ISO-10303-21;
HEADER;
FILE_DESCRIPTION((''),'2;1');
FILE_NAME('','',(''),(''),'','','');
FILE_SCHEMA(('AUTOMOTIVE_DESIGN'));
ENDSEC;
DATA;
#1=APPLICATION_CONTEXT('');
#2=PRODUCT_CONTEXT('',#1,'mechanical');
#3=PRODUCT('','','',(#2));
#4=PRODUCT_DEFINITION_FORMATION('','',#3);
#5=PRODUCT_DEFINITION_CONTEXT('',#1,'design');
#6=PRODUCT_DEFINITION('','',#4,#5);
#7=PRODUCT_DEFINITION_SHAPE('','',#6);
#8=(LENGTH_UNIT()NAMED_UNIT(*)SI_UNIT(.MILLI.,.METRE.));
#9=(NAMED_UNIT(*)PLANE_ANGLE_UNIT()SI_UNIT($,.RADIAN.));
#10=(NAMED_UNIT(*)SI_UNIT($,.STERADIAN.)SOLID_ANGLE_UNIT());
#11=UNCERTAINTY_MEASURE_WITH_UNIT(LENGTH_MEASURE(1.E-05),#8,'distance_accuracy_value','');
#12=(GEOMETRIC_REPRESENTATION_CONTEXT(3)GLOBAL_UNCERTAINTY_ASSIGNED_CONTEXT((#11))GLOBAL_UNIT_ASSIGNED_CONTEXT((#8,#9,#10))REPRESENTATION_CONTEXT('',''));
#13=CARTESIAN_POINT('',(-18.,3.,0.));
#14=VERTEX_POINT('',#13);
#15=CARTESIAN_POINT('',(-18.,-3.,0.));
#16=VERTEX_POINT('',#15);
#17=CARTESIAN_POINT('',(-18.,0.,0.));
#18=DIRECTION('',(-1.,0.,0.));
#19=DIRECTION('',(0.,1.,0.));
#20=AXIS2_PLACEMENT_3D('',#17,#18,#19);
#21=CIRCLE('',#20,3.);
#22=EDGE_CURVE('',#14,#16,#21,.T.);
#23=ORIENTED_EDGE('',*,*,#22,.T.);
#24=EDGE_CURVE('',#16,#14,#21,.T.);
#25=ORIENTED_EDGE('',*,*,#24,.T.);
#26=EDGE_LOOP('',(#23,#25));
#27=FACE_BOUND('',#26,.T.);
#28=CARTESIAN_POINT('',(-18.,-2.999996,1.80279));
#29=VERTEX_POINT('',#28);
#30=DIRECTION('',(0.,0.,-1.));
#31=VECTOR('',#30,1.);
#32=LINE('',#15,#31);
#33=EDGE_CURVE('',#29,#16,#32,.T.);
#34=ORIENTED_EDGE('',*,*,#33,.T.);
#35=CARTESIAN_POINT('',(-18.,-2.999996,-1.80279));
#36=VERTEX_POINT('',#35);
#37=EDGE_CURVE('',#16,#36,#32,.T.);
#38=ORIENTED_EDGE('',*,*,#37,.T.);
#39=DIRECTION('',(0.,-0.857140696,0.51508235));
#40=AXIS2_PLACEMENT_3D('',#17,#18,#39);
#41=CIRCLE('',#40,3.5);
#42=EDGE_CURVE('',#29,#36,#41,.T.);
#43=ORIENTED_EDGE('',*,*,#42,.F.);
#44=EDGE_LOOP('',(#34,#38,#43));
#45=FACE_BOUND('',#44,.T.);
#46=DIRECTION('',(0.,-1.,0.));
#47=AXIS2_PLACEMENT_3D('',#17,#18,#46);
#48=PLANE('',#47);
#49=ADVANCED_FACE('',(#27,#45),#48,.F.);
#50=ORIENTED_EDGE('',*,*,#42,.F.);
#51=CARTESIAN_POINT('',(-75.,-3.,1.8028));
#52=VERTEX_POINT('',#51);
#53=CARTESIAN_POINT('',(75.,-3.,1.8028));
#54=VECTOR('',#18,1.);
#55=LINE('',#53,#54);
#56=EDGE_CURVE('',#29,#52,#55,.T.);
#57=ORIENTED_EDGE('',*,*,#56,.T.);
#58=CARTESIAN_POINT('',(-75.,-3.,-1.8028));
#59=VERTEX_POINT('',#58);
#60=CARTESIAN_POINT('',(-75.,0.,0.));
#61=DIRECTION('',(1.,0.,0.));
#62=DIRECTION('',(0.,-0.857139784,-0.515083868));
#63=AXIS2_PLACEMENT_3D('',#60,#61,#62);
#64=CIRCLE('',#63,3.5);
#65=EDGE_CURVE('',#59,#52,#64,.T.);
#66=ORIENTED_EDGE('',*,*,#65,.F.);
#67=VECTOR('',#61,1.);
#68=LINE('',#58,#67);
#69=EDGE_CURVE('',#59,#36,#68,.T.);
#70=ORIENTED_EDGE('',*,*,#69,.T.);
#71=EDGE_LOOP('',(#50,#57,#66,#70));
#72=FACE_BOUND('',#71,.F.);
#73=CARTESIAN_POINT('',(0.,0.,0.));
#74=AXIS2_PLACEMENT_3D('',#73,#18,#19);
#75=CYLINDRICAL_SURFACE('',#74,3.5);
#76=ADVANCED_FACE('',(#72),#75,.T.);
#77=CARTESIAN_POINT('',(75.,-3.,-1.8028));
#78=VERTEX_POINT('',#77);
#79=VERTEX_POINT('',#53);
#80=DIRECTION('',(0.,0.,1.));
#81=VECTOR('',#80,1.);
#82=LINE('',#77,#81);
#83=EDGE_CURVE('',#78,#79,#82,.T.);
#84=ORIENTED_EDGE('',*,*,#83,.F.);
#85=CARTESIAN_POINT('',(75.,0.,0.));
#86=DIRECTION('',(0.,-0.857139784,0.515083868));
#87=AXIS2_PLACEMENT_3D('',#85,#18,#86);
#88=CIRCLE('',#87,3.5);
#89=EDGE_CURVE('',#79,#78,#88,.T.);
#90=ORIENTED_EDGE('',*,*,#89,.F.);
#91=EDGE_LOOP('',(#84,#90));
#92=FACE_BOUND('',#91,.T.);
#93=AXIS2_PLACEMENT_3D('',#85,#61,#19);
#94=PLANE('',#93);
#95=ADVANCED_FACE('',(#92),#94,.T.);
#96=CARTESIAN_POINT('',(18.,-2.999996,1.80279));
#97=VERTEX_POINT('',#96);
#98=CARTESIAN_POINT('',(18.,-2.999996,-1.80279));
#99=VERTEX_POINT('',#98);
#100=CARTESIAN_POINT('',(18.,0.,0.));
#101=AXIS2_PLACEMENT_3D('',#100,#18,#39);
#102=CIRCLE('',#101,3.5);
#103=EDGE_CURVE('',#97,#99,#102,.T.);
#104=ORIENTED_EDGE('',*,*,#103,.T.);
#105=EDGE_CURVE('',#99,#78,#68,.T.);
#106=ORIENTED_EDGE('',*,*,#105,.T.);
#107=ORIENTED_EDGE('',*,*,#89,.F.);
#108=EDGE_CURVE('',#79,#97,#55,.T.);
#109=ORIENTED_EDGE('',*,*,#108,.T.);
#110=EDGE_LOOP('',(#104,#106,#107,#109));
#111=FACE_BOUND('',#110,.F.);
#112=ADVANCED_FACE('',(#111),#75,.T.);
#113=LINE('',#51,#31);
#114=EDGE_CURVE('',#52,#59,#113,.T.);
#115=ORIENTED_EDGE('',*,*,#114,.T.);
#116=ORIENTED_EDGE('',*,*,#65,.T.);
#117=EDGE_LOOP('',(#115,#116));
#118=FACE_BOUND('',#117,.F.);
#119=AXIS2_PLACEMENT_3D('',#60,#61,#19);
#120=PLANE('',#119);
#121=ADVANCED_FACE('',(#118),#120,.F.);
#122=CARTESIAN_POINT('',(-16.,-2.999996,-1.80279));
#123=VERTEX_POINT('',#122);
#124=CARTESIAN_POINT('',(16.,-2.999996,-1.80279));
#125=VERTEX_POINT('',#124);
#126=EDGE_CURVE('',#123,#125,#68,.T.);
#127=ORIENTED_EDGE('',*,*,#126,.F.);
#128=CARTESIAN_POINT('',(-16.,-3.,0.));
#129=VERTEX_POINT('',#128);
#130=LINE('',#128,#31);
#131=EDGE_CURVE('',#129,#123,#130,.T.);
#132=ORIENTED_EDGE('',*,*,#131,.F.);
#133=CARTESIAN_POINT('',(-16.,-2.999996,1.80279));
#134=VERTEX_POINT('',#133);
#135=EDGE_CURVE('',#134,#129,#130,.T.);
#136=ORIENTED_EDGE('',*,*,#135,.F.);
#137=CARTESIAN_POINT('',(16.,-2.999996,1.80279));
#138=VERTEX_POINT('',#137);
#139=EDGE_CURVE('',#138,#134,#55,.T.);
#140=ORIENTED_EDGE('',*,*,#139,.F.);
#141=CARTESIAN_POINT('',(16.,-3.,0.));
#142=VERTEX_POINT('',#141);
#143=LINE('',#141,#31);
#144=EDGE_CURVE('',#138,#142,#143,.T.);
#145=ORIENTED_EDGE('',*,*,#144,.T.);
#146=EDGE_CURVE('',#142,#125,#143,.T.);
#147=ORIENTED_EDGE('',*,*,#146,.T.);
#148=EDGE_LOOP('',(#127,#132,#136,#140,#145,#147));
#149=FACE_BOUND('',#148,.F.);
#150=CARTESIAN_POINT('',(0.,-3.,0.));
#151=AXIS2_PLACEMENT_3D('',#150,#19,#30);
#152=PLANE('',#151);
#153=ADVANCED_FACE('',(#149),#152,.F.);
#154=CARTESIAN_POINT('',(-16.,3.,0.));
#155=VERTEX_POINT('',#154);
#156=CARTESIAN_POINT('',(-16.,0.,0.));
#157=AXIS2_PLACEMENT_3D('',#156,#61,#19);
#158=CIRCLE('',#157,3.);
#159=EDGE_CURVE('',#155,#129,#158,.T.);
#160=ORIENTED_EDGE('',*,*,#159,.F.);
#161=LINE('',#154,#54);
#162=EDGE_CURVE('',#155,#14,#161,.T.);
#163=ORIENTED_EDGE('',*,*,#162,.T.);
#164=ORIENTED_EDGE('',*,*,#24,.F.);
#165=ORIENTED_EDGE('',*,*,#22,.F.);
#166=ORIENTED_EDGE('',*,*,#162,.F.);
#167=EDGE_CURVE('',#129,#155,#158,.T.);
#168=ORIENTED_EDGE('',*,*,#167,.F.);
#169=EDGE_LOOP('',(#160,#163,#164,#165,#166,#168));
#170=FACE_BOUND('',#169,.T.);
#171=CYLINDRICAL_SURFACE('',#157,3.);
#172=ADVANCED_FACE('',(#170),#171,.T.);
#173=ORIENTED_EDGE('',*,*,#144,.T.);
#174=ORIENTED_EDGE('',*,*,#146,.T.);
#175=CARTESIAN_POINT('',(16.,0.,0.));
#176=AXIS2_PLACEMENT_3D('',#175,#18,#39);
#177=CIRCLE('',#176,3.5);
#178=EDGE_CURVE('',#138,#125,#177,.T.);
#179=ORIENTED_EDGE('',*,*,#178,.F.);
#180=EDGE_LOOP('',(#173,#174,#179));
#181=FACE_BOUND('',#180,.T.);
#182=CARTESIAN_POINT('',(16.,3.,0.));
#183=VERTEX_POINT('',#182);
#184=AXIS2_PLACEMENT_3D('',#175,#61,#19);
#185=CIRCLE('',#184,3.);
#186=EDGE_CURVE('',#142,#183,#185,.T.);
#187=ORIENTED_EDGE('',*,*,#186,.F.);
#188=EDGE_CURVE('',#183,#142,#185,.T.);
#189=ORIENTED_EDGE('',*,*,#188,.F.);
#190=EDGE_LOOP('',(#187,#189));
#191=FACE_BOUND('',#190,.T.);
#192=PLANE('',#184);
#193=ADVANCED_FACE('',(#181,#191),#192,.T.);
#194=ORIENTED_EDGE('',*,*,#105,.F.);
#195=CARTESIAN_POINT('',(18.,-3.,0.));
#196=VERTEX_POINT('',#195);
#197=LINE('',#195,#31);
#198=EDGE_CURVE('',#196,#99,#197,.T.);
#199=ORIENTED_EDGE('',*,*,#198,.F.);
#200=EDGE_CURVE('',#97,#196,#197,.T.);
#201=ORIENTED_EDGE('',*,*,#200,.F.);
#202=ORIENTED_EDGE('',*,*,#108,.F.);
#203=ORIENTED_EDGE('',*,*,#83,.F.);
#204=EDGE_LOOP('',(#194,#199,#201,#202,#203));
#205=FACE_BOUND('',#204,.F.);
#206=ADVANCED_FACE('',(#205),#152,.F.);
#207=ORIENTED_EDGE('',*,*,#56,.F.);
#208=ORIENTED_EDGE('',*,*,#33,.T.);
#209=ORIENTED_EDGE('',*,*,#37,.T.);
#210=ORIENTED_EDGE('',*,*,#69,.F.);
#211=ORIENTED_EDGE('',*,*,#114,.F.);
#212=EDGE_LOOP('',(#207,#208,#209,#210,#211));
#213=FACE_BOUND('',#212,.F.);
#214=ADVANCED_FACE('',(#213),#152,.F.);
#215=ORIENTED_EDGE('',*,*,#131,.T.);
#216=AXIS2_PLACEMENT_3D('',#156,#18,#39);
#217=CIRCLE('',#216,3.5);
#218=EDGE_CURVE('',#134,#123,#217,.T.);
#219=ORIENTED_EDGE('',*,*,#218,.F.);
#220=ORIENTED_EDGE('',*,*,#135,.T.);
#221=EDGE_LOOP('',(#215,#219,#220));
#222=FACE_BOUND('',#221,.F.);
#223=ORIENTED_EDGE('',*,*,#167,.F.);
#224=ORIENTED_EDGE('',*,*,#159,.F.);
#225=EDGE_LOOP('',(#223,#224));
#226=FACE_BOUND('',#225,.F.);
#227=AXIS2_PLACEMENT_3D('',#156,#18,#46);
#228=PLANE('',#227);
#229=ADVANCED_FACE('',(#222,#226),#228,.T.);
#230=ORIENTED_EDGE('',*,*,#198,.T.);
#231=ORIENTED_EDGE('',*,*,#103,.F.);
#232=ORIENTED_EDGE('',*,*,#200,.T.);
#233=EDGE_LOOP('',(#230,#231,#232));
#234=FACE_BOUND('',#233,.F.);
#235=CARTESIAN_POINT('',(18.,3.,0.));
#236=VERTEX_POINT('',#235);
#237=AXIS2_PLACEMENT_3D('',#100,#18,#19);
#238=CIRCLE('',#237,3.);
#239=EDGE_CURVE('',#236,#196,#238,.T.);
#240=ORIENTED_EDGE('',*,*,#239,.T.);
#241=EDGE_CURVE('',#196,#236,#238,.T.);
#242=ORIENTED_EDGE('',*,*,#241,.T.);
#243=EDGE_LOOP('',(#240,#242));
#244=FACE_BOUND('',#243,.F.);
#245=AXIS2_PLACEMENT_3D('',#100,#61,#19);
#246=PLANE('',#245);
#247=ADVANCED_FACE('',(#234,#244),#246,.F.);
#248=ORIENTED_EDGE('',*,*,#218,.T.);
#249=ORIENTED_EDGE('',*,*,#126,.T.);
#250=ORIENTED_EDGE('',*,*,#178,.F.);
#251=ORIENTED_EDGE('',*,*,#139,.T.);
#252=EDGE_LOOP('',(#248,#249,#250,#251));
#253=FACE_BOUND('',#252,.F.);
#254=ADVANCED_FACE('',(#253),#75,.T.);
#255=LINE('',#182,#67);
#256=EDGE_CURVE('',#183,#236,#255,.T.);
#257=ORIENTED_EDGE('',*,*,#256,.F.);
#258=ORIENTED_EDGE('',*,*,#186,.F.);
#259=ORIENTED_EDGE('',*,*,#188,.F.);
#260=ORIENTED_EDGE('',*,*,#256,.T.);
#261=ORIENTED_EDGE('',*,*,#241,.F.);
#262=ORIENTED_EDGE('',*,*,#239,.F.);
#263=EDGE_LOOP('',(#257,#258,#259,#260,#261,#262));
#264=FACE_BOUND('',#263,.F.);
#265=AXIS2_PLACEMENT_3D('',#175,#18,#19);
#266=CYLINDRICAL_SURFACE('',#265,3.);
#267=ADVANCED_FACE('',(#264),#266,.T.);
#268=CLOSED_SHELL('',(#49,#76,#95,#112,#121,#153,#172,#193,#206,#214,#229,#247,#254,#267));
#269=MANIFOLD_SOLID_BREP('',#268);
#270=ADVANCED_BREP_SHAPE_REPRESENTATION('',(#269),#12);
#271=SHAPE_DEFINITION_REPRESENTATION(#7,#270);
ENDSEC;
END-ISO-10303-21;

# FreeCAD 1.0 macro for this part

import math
import FreeCAD as App
import Part
import Sketcher
Q = App.Units.Quantity

doc = App.newDocument("Part")
body = doc.addObject("PartDesign::Body", "Body")

sketch1 = body.newObject("Sketcher::SketchObject", "Sketch")
sketch1.AttachmentSupport = (doc.getObject("YZ_Plane"), [""])
sketch1.MapMode = "FlatFace"
sketch1.addGeometry([
    Part.ArcOfCircle(Part.Circle(App.Vector(0, 0, 0), App.Vector(0, 0, 1), 3.5), math.radians(-148.996939), math.radians(148.996939)),
    Part.LineSegment(App.Vector(-3, -1.8028, 0), App.Vector(-3, 1.8028, 0)),
], False)
sketch1.addConstraint([
    Sketcher.Constraint("Coincident", 0, 1, 1, 1),
    Sketcher.Constraint("Coincident", 1, 2, 0, 2),
    Sketcher.Constraint("Vertical", 1),
    Sketcher.Constraint("Coincident", 0, 3, -1, 1),
    Sketcher.Constraint("Radius", 0, Q("3.5 mm")),
    Sketcher.Constraint("DistanceX", 0, 1, -1, 1, Q("3 mm")),
])
pad1 = body.newObject("PartDesign::Pad", "Pad")
pad1.Profile = sketch1
pad1.Length = 150
pad1.Midplane = True

sketch2 = body.newObject("Sketcher::SketchObject", "Sketch001")
sketch2.AttachmentSupport = (doc.getObject("YZ_Plane"), [""])
sketch2.MapMode = "FlatFace"
sketch2.AttachmentOffset = App.Placement(App.Vector(0, 0, 16), App.Rotation())
sketch2.addGeometry([
    Part.Circle(App.Vector(0, 0, 0), App.Vector(0, 0, 1), 3.5),
    Part.Circle(App.Vector(0, 0, 0), App.Vector(0, 0, 1), 3),
], False)
sketch2.addConstraint([
    Sketcher.Constraint("Coincident", 0, 3, -1, 1),
    Sketcher.Constraint("Coincident", 1, 3, -1, 1),
    Sketcher.Constraint("Diameter", 0, Q("7 mm")),
    Sketcher.Constraint("Diameter", 1, Q("6 mm")),
])
pocket1 = body.newObject("PartDesign::Pocket", "Pocket")
pocket1.Profile = sketch2
pocket1.Length = 2
pocket1.Reversed = True
doc.recompute()

mirrored = body.newObject("PartDesign::Mirrored", "Mirrored")
mirrored.Originals = [pocket1]
mirrored.MirrorPlane = (doc.getObject("YZ_Plane"), [""])
body.Tip = mirrored

doc.recompute()
